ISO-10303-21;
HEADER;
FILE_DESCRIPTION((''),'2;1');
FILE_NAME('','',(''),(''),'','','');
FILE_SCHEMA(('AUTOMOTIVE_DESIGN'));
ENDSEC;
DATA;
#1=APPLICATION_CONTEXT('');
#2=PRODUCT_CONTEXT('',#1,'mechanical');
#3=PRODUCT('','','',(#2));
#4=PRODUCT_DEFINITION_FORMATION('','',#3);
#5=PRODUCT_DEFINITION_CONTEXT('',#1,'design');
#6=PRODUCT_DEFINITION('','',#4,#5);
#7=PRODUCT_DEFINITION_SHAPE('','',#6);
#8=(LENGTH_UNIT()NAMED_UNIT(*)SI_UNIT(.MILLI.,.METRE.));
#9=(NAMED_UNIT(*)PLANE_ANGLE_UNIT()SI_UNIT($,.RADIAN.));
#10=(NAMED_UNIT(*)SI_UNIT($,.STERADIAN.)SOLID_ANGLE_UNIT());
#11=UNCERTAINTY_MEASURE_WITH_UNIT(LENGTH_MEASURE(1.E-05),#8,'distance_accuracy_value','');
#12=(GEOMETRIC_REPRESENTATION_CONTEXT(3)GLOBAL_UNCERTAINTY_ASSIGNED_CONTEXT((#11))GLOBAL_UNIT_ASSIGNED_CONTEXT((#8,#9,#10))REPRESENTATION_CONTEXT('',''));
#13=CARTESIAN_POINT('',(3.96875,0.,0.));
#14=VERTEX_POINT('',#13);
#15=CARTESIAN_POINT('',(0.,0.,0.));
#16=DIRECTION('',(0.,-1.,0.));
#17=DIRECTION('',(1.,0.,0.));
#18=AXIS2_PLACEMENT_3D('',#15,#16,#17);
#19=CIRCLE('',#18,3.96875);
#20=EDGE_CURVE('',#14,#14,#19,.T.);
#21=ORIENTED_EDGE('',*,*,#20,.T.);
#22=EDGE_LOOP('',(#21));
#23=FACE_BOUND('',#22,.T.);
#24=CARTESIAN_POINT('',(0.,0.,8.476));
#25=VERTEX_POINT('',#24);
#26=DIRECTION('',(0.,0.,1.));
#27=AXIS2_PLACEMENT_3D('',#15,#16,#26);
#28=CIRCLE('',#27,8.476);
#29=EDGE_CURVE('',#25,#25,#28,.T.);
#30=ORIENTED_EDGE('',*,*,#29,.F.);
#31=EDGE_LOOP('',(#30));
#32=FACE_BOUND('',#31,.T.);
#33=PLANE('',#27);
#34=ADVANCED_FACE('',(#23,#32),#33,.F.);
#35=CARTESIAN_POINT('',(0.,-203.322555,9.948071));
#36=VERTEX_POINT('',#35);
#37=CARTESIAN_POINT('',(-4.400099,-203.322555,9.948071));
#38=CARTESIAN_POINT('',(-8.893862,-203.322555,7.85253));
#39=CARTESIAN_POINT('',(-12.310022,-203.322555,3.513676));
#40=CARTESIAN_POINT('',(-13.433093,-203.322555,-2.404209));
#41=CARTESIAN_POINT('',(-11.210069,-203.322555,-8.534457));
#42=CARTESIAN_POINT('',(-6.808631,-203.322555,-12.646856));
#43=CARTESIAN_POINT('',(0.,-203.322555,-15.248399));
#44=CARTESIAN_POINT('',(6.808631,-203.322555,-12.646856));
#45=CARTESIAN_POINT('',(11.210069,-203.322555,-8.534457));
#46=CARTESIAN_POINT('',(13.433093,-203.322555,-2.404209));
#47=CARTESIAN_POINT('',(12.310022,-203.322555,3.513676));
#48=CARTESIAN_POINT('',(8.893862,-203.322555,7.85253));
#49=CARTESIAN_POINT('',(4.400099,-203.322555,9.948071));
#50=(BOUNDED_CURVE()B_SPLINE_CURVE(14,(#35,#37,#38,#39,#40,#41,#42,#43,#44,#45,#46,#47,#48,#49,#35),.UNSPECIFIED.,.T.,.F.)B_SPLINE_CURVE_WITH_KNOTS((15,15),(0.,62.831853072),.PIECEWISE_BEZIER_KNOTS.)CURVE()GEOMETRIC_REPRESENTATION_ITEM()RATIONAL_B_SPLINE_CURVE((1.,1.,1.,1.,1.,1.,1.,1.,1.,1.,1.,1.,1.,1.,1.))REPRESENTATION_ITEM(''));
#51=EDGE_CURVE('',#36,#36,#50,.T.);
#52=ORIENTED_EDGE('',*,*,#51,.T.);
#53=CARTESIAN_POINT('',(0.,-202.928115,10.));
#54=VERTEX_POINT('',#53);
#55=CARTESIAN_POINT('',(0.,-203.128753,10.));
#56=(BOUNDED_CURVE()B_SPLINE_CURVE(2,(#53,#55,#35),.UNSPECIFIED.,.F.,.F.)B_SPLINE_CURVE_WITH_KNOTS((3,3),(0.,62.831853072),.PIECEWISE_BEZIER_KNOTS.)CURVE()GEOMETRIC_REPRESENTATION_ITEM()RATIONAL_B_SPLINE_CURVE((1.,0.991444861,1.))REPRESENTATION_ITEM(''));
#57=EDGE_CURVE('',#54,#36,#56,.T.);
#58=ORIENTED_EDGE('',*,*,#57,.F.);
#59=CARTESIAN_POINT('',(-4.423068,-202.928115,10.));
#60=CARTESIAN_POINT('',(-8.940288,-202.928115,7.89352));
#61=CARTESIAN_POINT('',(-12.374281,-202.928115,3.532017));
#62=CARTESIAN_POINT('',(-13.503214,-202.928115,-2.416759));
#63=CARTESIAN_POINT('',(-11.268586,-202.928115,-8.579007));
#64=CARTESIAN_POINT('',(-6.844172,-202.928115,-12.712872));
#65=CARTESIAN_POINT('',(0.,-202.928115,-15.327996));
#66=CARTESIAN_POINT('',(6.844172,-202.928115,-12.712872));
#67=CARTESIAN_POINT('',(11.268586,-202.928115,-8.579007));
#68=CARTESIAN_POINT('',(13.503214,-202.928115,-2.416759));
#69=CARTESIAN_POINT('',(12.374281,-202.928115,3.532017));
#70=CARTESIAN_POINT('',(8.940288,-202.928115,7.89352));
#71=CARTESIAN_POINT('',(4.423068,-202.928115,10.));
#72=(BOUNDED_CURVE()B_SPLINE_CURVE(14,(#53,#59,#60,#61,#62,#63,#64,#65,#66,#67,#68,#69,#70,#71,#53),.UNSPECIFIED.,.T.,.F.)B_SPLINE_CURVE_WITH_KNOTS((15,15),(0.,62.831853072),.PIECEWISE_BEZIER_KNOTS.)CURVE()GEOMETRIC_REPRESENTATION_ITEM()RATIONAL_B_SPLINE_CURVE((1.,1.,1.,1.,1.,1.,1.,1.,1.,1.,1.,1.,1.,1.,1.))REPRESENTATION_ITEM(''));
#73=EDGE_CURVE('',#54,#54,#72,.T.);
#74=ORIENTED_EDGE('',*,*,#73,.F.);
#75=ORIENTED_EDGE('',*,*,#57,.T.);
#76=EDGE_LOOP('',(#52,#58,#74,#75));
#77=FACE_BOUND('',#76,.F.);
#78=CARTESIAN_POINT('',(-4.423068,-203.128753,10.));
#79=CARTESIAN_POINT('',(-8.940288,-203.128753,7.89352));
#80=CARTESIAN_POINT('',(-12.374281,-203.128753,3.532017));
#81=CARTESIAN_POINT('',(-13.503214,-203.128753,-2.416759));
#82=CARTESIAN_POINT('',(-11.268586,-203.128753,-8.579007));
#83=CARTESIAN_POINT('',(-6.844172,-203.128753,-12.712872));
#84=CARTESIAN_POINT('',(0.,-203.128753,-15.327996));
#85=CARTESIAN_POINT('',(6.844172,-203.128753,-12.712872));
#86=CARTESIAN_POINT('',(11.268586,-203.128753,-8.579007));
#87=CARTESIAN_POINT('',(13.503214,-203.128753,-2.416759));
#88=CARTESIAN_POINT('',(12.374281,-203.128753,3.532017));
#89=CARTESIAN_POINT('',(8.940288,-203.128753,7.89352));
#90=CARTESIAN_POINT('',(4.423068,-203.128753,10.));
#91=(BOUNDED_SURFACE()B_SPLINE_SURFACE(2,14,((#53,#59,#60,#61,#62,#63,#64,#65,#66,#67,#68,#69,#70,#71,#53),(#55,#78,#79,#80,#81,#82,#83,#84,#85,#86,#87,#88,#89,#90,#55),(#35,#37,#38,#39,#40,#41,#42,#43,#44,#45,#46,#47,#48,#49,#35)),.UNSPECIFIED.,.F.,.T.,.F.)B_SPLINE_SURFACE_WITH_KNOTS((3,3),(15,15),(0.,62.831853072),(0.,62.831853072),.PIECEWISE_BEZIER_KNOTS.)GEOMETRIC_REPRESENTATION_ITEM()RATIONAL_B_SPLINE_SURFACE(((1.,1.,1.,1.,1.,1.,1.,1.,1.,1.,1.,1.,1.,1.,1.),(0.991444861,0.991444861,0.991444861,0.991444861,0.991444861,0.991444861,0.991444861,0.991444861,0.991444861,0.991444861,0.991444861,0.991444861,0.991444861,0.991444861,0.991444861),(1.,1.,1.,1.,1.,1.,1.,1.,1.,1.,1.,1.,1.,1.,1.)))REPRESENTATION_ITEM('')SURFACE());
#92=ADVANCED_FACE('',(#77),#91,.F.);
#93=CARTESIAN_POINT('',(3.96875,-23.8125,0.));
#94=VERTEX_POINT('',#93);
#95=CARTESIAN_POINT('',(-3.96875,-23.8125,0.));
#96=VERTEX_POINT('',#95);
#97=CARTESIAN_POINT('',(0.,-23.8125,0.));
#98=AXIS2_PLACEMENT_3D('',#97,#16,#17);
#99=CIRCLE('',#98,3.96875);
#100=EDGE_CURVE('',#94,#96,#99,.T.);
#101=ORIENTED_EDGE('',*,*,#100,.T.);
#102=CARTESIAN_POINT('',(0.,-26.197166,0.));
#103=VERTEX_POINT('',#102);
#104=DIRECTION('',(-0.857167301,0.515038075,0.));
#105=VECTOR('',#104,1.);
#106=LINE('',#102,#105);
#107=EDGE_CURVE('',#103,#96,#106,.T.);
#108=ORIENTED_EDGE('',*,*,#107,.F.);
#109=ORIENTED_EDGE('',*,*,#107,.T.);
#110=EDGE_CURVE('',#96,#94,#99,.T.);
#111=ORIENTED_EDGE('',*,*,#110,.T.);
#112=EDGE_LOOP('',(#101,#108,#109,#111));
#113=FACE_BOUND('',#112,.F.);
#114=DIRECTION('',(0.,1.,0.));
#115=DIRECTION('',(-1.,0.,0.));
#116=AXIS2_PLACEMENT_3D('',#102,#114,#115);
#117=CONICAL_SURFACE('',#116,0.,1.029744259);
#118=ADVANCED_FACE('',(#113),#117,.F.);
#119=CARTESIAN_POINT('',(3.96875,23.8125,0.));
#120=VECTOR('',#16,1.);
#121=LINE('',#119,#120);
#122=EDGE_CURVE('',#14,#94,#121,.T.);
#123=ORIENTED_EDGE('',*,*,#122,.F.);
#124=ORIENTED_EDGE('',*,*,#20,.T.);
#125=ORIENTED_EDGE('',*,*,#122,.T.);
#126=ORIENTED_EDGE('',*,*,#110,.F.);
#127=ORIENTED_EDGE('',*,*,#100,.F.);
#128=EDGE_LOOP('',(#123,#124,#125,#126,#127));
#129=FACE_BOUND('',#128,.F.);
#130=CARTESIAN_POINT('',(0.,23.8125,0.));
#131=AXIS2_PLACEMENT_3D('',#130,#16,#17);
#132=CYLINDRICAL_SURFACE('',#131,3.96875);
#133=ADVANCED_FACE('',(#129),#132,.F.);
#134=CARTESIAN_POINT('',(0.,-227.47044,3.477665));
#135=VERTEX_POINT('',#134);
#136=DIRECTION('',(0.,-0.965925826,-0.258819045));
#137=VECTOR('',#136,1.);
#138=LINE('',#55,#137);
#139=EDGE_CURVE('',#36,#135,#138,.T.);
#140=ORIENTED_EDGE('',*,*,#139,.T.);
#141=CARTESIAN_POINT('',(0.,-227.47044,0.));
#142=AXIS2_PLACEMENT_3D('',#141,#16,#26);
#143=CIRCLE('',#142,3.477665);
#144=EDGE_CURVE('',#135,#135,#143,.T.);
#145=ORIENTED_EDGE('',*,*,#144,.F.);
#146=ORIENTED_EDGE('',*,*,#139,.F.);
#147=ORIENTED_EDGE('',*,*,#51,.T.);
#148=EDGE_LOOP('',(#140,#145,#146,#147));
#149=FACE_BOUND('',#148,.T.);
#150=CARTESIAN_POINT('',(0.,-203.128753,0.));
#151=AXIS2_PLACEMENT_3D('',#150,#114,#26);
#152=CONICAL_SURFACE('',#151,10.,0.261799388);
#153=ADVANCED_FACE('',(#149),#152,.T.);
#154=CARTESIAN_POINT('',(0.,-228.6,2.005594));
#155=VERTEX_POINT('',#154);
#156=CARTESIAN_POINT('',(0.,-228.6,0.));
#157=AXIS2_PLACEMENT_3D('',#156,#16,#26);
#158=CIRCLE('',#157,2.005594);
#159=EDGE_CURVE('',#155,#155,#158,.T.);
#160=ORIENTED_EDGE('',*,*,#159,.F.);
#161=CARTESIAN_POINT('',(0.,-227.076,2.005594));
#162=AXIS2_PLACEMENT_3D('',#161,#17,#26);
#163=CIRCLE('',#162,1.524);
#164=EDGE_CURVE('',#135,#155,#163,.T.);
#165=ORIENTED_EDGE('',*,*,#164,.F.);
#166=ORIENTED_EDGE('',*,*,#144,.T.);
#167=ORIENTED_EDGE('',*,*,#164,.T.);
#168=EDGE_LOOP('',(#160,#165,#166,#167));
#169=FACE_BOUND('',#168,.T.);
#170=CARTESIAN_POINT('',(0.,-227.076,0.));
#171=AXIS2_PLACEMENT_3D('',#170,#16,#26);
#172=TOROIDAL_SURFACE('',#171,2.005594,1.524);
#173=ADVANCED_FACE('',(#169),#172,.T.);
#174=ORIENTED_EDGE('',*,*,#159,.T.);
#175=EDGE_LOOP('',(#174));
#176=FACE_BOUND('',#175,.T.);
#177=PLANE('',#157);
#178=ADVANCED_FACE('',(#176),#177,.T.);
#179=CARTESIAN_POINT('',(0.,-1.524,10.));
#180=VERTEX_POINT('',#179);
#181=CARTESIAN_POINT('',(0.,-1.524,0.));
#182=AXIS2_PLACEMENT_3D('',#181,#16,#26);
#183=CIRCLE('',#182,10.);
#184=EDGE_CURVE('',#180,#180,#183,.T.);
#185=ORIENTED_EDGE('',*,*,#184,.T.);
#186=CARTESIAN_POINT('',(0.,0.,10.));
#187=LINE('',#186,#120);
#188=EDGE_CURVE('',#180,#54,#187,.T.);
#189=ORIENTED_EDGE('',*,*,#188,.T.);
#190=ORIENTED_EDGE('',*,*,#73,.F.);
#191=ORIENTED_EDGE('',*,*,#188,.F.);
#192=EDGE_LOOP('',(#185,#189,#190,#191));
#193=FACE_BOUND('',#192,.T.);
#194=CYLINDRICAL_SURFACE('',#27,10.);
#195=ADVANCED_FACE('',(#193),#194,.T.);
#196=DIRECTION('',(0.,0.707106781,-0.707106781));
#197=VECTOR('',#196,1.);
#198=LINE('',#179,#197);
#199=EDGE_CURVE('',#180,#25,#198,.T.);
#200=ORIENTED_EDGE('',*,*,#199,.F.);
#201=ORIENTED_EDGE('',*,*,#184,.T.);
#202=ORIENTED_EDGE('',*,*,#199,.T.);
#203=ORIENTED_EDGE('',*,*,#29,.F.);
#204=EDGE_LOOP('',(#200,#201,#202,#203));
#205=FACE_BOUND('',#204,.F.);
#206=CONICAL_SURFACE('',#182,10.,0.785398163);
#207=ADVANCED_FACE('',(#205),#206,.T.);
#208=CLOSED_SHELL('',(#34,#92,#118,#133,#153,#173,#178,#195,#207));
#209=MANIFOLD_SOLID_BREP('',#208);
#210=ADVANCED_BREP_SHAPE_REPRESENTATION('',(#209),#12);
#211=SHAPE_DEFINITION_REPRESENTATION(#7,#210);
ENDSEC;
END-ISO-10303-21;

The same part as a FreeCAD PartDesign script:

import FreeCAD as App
import Part
import Sketcher

V = App.Vector
Q = App.Units.Quantity


def edges_at(feature, points):
    """Names of the edges that pass closest to the given points."""
    edges = feature.Shape.Edges
    near = lambda p: min(range(len(edges)), key=lambda i: edges[i].distToShape(Part.Vertex(*p))[0])
    return sorted({f"Edge{near(p) + 1}" for p in points})

doc = App.newDocument("Part")
body = doc.addObject("PartDesign::Body", "Body")

sketch1 = doc.addObject("Sketcher::SketchObject", "Sketch")
body.addObject(sketch1)
sketch1.AttachmentSupport = (doc.YZ_Plane, [""])
sketch1.MapMode = "FlatFace"
sketch1.addGeometry([
    Part.LineSegment(V(-228.6, 0, 0), V(0, 0, 0)),
    Part.LineSegment(V(0, 0, 0), V(0, 10, 0)),
    Part.LineSegment(V(0, 10, 0), V(-203.128753, 10, 0)),
    Part.LineSegment(V(-203.128753, 10, 0), V(-228.6, 3.175, 0)),
    Part.LineSegment(V(-228.6, 3.175, 0), V(-228.6, 0, 0)),
], False)
sketch1.addConstraint([
    Sketcher.Constraint("Coincident", 0, 2, 1, 1),
    Sketcher.Constraint("Coincident", 1, 2, 2, 1),
    Sketcher.Constraint("Coincident", 2, 2, 3, 1),
    Sketcher.Constraint("Coincident", 3, 2, 4, 1),
    Sketcher.Constraint("Coincident", 4, 2, 0, 1),
    Sketcher.Constraint("Horizontal", 0),
    Sketcher.Constraint("Vertical", 1),
    Sketcher.Constraint("Horizontal", 2),
    Sketcher.Constraint("Vertical", 4),
    Sketcher.Constraint("Coincident", 0, 2, -1, 1),
    Sketcher.Constraint("DistanceX", 0, 1, 0, 2, Q("9 in")),
    Sketcher.Constraint("Angle", 3, Q("-165 deg")),
    Sketcher.Constraint("DistanceY", 4, 2, 4, 1, Q("0.125 in")),
    Sketcher.Constraint("DistanceY", 1, 1, 1, 2, 10.0),
])
revolution = doc.addObject("PartDesign::Revolution", "Revolution")
body.addObject(revolution)
revolution.Profile = sketch1
revolution.ReferenceAxis = (sketch1, ["H_Axis"])
revolution.Angle = 360
doc.recompute()

fillet = doc.addObject("PartDesign::Fillet", "Fillet")
body.addObject(fillet)
fillet.Base = (revolution, edges_at(revolution, [(0, -203.129, -10), (0, -228.6, -3.175)]))
fillet.Radius = Q("0.06 in")

sketch2 = doc.addObject("Sketcher::SketchObject", "Sketch001")
body.addObject(sketch2)
sketch2.AttachmentSupport = (doc.XZ_Plane, [""])
sketch2.MapMode = "FlatFace"
sketch2.addGeometry(Part.Circle(V(0, 0, 0), V(0, 0, 1), 3.96875), False)
sketch2.addConstraint([
    Sketcher.Constraint("Coincident", 0, 3, -1, 1),
    Sketcher.Constraint("Diameter", 0, Q("0.3125 in")),
])
doc.recompute()
hole = doc.addObject("PartDesign::Hole", "Hole")
body.addObject(hole)
hole.Profile = sketch2
hole.ThreadType = "None"
hole.Diameter = Q("0.3125 in")
hole.DepthType = "Dimension"
hole.Depth = Q("0.9375 in")
hole.DrillPoint = "Angled"
hole.DrillPointAngle = 118
hole.Reversed = True
doc.recompute()

chamfer = doc.addObject("PartDesign::Chamfer", "Chamfer")
body.addObject(chamfer)
chamfer.Base = (hole, edges_at(hole, [(0, 0, -10)]))
chamfer.Size = Q("0.06 in")

doc.recompute()
